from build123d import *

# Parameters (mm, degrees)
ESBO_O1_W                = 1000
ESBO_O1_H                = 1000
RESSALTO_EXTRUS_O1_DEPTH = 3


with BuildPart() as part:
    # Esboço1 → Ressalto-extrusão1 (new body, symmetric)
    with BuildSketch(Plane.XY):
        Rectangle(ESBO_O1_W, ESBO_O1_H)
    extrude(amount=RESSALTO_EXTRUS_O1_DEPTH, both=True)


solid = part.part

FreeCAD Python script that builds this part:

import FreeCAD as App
import Part
import Sketcher

V = App.Vector
Q = App.Units.Quantity


def add_polygon(sketch, points):
    """Adds a closed chain of lines whose ends are joined by coincident constraints."""
    first, n = sketch.GeometryCount, len(points)
    for a, b in zip(points, points[1:] + points[:1]):
        sketch.addGeometry(Part.LineSegment(App.Vector(*a, 0), App.Vector(*b, 0)), False)
    for i in range(n):
        sketch.addConstraint(Sketcher.Constraint("Coincident", first + i, 2, first + (i + 1) % n, 1))

doc = App.newDocument("Part")
body = doc.addObject("PartDesign::Body", "Body")

sketch1 = body.newObject("Sketcher::SketchObject", "Sketch")
sketch1.AttachmentSupport = (doc.getObject("XY_Plane"), [""])
sketch1.MapMode = "FlatFace"
add_polygon(sketch1, [(-500, 500), (-500, -500), (500, -500), (500, 500)])
sketch1.addConstraint([
    Sketcher.Constraint("Vertical", 0),
    Sketcher.Constraint("Horizontal", 1),
    Sketcher.Constraint("Vertical", 2),
    Sketcher.Constraint("Horizontal", 3),
    Sketcher.Constraint("Symmetric", 0, 2, 2, 2, -1, 1),
    Sketcher.Constraint("Equal", 3, 0),
    Sketcher.Constraint("DistanceX", 1, 1, 1, 2, Q("1000 mm")),
])
pad1 = body.newObject("PartDesign::Pad", "Pad")
pad1.Profile = sketch1
pad1.Length = 6
pad1.Midplane = True

doc.recompute()
